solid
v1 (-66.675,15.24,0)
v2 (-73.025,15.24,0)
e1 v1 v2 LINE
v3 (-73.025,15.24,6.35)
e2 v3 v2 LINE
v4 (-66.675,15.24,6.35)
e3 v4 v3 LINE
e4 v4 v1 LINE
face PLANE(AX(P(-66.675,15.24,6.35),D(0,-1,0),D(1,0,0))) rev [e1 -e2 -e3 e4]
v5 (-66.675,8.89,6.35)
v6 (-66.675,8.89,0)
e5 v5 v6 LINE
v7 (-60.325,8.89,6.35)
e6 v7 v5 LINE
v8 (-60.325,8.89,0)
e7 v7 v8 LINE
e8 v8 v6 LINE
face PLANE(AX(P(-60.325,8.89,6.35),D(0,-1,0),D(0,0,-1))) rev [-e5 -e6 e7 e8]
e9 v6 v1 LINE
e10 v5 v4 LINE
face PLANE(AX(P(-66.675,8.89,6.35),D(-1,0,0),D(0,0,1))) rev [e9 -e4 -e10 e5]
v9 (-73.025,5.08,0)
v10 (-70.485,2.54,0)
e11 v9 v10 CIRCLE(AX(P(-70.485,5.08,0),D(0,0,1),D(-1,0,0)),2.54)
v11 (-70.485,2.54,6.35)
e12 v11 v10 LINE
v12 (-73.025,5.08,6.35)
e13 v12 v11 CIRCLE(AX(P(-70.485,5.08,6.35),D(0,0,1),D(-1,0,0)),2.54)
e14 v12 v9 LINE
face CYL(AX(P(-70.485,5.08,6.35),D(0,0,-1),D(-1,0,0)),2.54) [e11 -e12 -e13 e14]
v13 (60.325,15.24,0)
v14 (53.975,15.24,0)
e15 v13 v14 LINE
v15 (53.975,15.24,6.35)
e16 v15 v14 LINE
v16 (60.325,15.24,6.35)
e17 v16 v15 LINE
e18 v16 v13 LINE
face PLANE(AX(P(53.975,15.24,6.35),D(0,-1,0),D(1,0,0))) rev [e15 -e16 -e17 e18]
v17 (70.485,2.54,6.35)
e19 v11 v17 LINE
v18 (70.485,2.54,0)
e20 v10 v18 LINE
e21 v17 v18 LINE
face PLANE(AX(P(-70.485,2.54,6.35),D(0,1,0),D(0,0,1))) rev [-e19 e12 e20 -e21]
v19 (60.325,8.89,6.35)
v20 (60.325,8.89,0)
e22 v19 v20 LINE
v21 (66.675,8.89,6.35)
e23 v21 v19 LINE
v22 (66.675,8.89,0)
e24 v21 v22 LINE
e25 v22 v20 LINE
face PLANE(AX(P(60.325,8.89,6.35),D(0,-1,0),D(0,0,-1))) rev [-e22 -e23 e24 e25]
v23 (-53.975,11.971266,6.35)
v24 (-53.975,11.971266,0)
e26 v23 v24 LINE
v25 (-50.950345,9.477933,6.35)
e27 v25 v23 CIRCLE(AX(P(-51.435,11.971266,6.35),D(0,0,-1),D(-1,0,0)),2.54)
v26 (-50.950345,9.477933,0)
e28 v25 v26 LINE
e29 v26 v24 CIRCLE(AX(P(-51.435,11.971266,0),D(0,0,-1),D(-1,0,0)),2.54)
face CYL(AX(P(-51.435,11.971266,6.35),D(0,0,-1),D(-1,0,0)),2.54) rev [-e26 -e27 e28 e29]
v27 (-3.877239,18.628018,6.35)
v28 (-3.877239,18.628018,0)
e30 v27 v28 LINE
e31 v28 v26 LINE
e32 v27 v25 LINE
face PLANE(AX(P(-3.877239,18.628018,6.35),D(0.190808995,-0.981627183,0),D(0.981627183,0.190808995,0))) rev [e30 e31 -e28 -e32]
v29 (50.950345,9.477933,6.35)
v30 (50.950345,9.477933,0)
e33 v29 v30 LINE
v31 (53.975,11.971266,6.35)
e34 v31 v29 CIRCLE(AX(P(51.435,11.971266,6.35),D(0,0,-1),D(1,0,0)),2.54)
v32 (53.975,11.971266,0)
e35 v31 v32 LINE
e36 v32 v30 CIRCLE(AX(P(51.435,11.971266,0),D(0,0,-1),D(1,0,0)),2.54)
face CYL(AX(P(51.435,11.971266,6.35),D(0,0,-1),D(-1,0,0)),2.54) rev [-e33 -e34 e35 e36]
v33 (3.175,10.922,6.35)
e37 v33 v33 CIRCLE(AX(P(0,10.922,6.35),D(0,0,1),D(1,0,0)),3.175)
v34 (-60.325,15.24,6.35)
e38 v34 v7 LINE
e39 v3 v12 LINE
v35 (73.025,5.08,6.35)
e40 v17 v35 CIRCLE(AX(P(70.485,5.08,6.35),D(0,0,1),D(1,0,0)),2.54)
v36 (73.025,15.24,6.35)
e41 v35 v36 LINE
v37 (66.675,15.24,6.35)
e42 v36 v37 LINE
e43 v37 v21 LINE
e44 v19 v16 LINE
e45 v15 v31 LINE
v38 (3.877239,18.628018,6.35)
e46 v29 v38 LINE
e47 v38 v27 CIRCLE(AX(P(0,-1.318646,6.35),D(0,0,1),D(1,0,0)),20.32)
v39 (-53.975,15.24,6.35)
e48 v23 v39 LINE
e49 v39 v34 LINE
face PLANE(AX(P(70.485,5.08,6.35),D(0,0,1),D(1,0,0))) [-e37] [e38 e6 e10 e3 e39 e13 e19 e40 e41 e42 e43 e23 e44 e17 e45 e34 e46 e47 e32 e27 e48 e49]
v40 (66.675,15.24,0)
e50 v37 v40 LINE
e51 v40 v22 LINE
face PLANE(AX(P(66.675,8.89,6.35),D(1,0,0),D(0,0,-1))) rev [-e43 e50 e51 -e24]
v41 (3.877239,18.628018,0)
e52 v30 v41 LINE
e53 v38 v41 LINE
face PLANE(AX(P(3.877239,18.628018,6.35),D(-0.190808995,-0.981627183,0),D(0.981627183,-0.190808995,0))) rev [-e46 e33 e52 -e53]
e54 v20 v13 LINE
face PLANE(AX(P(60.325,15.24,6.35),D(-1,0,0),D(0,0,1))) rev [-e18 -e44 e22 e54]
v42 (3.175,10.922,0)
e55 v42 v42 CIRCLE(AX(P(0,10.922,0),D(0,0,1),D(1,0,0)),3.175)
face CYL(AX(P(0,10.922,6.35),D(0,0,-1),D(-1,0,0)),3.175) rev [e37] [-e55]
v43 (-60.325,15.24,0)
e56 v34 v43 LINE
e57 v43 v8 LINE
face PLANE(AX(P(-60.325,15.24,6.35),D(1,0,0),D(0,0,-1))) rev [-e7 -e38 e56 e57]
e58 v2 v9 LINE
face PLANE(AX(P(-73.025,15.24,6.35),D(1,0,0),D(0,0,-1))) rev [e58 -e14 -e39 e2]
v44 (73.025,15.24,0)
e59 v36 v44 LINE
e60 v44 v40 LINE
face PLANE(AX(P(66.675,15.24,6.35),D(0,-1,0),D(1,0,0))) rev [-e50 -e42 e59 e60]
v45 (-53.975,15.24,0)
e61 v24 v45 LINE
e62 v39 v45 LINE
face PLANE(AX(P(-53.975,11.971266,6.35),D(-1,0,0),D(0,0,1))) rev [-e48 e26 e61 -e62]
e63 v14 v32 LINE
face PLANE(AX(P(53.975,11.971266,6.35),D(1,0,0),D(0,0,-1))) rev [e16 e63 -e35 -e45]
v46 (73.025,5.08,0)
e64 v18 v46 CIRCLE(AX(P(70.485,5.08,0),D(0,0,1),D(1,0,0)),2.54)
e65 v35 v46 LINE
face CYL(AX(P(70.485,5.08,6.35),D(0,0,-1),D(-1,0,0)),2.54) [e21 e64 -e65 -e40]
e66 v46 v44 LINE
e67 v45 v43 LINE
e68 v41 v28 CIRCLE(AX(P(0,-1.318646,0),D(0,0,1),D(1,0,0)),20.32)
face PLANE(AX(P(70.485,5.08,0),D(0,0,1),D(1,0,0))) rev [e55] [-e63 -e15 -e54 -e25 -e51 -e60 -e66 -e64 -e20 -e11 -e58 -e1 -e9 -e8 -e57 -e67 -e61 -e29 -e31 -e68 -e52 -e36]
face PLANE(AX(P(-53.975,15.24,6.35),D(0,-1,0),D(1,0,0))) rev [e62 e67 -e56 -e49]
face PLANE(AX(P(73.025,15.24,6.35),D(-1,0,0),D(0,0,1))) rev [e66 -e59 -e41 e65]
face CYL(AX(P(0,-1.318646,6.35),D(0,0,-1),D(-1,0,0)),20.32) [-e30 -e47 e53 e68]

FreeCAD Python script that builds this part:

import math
import FreeCAD as App
import Part
import Sketcher
Q = App.Units.Quantity

doc = App.newDocument("Part")
params = doc.addObject("Spreadsheet::Sheet", "Params")
for row, (alias, value) in enumerate([
    ("sketch1_radius", "0.1 in"),
    ("sketch1_radius2", "0.8 in"),
    ("sketch1_diameter", "0.25 in"),
    ("sketch1_height", "0.4 in"),
    ("sketch1_width", "0.25 in"),
    ("pad1_length", "0.25 in"),
], start=1):
    params.set(f"A{row}", alias)
    params.set(f"B{row}", "=" + value)
    params.setAlias(f"B{row}", alias)

body = doc.addObject("PartDesign::Body", "Body")

# Sketch on XY plane
sketch1 = doc.addObject("Sketcher::SketchObject", "Sketch")
body.addObject(sketch1)
sketch1.AttachmentSupport = (doc.XY_Plane, [""])
sketch1.MapMode = "FlatFace"
sketch1.addGeometry([
    Part.LineSegment(App.Vector(-3.9, 18.6, 0), App.Vector(-51, 9.5, 0)),  # 0
    Part.ArcOfCircle(Part.Circle(App.Vector(-51.4, 12, 0), App.Vector(0, 0, 1), 2.5), math.radians(-180), math.radians(-79)),  # 1
    Part.LineSegment(App.Vector(-54, 12, 0), App.Vector(-54, 15.2, 0)),  # 2
    Part.LineSegment(App.Vector(-54, 15.2, 0), App.Vector(-60.3, 15.2, 0)),  # 3
    Part.LineSegment(App.Vector(-60.3, 15.2, 0), App.Vector(-60.3, 8.9, 0)),  # 4
    Part.LineSegment(App.Vector(-60.3, 8.9, 0), App.Vector(-66.7, 8.9, 0)),  # 5
    Part.LineSegment(App.Vector(-66.7, 8.9, 0), App.Vector(-66.7, 15.2, 0)),  # 6
    Part.LineSegment(App.Vector(-66.7, 15.2, 0), App.Vector(-73, 15.2, 0)),  # 7
    Part.LineSegment(App.Vector(-73, 15.2, 0), App.Vector(-73, 5.1, 0)),  # 8
    Part.ArcOfCircle(Part.Circle(App.Vector(-70.5, 5.1, 0), App.Vector(0, 0, 1), 2.5), math.radians(-180), math.radians(-90)),  # 9
    Part.LineSegment(App.Vector(-70.5, 2.5, 0), App.Vector(70.5, 2.5, 0)),  # 10
    Part.ArcOfCircle(Part.Circle(App.Vector(70.5, 5.1, 0), App.Vector(0, 0, 1), 2.5), math.radians(-90), math.radians(0)),  # 11
    Part.LineSegment(App.Vector(73, 5.1, 0), App.Vector(73, 15.2, 0)),  # 12
    Part.LineSegment(App.Vector(73, 15.2, 0), App.Vector(66.7, 15.2, 0)),  # 13
    Part.LineSegment(App.Vector(66.7, 15.2, 0), App.Vector(66.7, 8.9, 0)),  # 14
    Part.LineSegment(App.Vector(66.7, 8.9, 0), App.Vector(60.3, 8.9, 0)),  # 15
    Part.LineSegment(App.Vector(60.3, 8.9, 0), App.Vector(60.3, 15.2, 0)),  # 16
    Part.LineSegment(App.Vector(60.3, 15.2, 0), App.Vector(54, 15.2, 0)),  # 17
    Part.LineSegment(App.Vector(54, 15.2, 0), App.Vector(54, 12, 0)),  # 18
    Part.ArcOfCircle(Part.Circle(App.Vector(51.4, 12, 0), App.Vector(0, 0, 1), 2.5), math.radians(-101), math.radians(0)),  # 19
    Part.LineSegment(App.Vector(51, 9.5, 0), App.Vector(3.9, 18.6, 0)),  # 20
    Part.ArcOfCircle(Part.Circle(App.Vector(0, -1.3, 0), App.Vector(0, 0, 1), 20.3), math.radians(79), math.radians(101)),  # 21
    Part.Circle(App.Vector(0, 10.9, 0), App.Vector(0, 0, 1), 3.2),  # 22
], False)
sketch1.addConstraint([
    Sketcher.Constraint("Tangent", 0, 2, 1, 2),
    Sketcher.Constraint("Tangent", 1, 1, 2, 1),
    Sketcher.Constraint("Coincident", 2, 2, 3, 1),
    Sketcher.Constraint("Coincident", 3, 2, 4, 1),
    Sketcher.Constraint("Coincident", 4, 2, 5, 1),
    Sketcher.Constraint("Coincident", 5, 2, 6, 1),
    Sketcher.Constraint("Coincident", 6, 2, 7, 1),
    Sketcher.Constraint("Coincident", 7, 2, 8, 1),
    Sketcher.Constraint("Tangent", 8, 2, 9, 1),
    Sketcher.Constraint("Tangent", 9, 2, 10, 1),
    Sketcher.Constraint("Tangent", 10, 2, 11, 1),
    Sketcher.Constraint("Tangent", 11, 2, 12, 1),
    Sketcher.Constraint("Coincident", 12, 2, 13, 1),
    Sketcher.Constraint("Coincident", 13, 2, 14, 1),
    Sketcher.Constraint("Coincident", 14, 2, 15, 1),
    Sketcher.Constraint("Coincident", 15, 2, 16, 1),
    Sketcher.Constraint("Coincident", 16, 2, 17, 1),
    Sketcher.Constraint("Coincident", 17, 2, 18, 1),
    Sketcher.Constraint("Tangent", 18, 2, 19, 2),
    Sketcher.Constraint("Tangent", 19, 1, 20, 1),
    Sketcher.Constraint("Tangent", 20, 2, 21, 1),
    Sketcher.Constraint("Tangent", 21, 2, 0, 1),
    Sketcher.Constraint("Vertical", 2),
    Sketcher.Constraint("Horizontal", 3),
    Sketcher.Constraint("Vertical", 4),
    Sketcher.Constraint("Horizontal", 5),
    Sketcher.Constraint("Vertical", 6),
    Sketcher.Constraint("Horizontal", 7),
    Sketcher.Constraint("Vertical", 8),
    Sketcher.Constraint("Horizontal", 10),
    Sketcher.Constraint("Vertical", 12),
    Sketcher.Constraint("Horizontal", 13),
    Sketcher.Constraint("Vertical", 14),
    Sketcher.Constraint("Horizontal", 15),
    Sketcher.Constraint("Vertical", 16),
    Sketcher.Constraint("Horizontal", 17),
    Sketcher.Constraint("Vertical", 18),
    Sketcher.Constraint("Equal", 1, 9),
    Sketcher.Constraint("Equal", 9, 11),
    Sketcher.Constraint("Equal", 11, 19),
    Sketcher.Constraint("Symmetric", 1, 3, 19, 3, -2),
    Sketcher.Constraint("Symmetric", 7, 2, 12, 2, -2),
    Sketcher.Constraint("Symmetric", 5, 2, 14, 2, -2),
    Sketcher.Constraint("Symmetric", 3, 2, 16, 2, -2),
    Sketcher.Constraint("PointOnObject", 21, 3, -2),
    Sketcher.Constraint("PointOnObject", 22, 3, -2),
    Sketcher.Constraint("Horizontal", 3, 2, 6, 2),
    Sketcher.Constraint("Equal", 3, 5),
    Sketcher.Constraint("Equal", 5, 7),
    Sketcher.Constraint("Equal", 17, 4),
    Sketcher.Constraint("Radius", 1, Q("0.1 in")),
    Sketcher.Constraint("Radius", 21, Q("0.8 in")),
    Sketcher.Constraint("Diameter", 22, Q("0.25 in")),
    Sketcher.Constraint("DistanceY", 8, 2, 8, 1, Q("0.4 in")),
    Sketcher.Constraint("Angle", 0, Q("-169 deg")),
    Sketcher.Constraint("DistanceX", 3, 2, 3, 1, Q("0.25 in")),
    Sketcher.Constraint("DistanceX", 10, 1, 10, 2, Q("5.55 in")),
    Sketcher.Constraint("DistanceY", -1, 1, 9, 3, Q("0.2 in")),
    Sketcher.Constraint("DistanceY", -1, 1, 22, 3, Q("0.43 in")),
    Sketcher.Constraint("DistanceY", 2, 1, 2, 2, Q("3.268734 mm")),
])
sketch1.setExpression("Constraints[50]", "Params.sketch1_radius")
sketch1.setExpression("Constraints[51]", "Params.sketch1_radius2")
sketch1.setExpression("Constraints[52]", "Params.sketch1_diameter")
sketch1.setExpression("Constraints[53]", "Params.sketch1_height")
sketch1.setExpression("Constraints[55]", "Params.sketch1_width")
pad1 = doc.addObject("PartDesign::Pad", "Pad")
body.addObject(pad1)
pad1.Profile = sketch1
pad1.setExpression("Length", "Params.pad1_length")

doc.recompute()
